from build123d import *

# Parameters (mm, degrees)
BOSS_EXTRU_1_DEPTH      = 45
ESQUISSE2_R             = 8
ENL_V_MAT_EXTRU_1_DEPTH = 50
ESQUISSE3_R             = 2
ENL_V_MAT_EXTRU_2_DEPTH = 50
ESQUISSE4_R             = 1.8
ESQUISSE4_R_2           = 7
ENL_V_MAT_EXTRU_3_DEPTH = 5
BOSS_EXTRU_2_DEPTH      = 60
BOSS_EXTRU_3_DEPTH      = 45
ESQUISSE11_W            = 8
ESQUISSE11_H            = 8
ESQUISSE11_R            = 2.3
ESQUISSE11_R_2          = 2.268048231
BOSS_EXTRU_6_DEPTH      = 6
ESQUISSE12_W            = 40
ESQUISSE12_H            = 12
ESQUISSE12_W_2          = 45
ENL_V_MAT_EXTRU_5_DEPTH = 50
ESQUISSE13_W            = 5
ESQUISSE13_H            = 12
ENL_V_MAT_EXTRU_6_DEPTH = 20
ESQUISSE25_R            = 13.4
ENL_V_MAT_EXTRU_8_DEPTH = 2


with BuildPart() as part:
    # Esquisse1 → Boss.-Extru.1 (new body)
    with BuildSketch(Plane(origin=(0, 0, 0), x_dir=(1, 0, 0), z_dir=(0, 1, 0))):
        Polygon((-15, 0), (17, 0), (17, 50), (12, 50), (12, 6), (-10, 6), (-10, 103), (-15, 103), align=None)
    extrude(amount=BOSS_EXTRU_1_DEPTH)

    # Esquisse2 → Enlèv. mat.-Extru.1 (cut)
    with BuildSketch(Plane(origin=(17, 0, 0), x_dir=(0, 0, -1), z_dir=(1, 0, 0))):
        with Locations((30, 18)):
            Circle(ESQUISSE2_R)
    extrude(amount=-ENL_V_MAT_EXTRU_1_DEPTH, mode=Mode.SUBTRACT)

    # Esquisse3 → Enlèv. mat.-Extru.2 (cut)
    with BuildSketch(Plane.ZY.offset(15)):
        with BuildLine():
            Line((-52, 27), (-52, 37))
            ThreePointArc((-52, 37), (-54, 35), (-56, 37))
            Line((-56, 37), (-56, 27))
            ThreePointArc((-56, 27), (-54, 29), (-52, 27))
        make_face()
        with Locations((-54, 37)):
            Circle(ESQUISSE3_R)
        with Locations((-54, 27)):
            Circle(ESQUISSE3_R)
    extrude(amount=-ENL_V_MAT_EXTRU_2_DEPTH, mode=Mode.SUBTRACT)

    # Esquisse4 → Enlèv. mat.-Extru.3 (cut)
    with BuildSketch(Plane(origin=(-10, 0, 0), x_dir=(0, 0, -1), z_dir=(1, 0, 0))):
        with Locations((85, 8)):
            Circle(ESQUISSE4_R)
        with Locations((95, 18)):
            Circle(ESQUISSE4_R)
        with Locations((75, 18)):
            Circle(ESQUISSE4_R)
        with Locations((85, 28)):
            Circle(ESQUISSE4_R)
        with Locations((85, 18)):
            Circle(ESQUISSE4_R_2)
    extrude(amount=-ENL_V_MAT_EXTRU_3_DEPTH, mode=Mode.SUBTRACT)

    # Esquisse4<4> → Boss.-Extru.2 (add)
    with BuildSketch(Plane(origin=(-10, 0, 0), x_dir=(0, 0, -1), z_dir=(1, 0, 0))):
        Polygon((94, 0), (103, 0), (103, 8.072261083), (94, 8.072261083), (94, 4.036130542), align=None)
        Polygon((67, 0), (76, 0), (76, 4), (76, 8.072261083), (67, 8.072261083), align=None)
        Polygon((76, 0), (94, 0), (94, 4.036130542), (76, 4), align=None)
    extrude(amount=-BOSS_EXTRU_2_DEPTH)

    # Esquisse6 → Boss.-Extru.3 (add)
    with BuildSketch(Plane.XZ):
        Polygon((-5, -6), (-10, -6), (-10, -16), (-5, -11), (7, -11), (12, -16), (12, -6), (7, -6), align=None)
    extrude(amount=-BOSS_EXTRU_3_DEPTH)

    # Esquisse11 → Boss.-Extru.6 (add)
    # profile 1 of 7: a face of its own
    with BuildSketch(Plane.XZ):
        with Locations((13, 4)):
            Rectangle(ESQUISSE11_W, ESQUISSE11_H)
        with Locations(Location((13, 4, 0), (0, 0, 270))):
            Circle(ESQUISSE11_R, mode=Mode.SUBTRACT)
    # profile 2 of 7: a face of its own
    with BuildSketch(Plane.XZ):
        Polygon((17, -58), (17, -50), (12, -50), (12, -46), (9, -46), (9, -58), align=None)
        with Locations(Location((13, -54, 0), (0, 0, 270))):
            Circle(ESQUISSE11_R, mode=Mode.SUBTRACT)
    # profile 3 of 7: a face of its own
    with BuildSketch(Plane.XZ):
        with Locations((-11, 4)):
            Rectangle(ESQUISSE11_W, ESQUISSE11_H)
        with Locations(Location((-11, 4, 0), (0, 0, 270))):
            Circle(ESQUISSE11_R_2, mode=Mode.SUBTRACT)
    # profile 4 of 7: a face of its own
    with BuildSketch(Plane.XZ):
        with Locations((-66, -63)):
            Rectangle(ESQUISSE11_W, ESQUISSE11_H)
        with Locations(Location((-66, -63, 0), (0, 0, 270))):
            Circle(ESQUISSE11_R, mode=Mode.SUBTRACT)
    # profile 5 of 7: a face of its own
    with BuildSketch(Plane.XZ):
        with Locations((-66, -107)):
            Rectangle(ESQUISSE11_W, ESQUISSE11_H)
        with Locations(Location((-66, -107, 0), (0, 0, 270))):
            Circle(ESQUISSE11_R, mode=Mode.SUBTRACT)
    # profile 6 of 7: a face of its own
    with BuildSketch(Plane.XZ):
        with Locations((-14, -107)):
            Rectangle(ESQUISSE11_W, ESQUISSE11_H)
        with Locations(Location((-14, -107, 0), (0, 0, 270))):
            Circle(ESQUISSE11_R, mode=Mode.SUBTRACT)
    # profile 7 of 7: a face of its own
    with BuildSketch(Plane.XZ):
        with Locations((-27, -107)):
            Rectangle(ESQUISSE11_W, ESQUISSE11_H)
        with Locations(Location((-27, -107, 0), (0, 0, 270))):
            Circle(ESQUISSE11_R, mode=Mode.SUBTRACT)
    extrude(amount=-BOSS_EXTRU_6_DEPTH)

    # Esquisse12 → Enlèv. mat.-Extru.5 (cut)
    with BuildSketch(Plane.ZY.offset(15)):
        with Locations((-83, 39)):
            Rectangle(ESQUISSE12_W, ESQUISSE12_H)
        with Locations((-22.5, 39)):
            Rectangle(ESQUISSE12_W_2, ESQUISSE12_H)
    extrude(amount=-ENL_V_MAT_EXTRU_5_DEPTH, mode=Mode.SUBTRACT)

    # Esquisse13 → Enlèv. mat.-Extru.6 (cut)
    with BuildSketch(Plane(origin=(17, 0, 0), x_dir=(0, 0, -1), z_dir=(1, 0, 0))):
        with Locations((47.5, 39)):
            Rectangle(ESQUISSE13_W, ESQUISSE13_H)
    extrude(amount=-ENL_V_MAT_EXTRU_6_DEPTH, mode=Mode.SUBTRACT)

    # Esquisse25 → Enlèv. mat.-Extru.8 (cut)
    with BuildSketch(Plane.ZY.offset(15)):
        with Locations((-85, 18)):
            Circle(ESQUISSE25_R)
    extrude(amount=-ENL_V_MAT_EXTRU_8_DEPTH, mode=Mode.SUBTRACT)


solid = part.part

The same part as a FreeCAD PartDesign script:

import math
import FreeCAD as App
import Part
import Sketcher

V = App.Vector


def add_polygon(sketch, points):
    """Adds a closed chain of lines whose ends are joined by coincident constraints."""
    first, n = sketch.GeometryCount, len(points)
    for a, b in zip(points, points[1:] + points[:1]):
        sketch.addGeometry(Part.LineSegment(App.Vector(*a, 0), App.Vector(*b, 0)), False)
    for i in range(n):
        sketch.addConstraint(Sketcher.Constraint("Coincident", first + i, 2, first + (i + 1) % n, 1))

doc = App.newDocument("Part")
params = doc.addObject("Spreadsheet::Sheet", "Params")
for row, (alias, value) in enumerate([
    ("sketch1_width", "32 mm"),
    ("sketch1_width2", "5 mm"),
    ("sketch1_height", "50 mm"),
    ("sketch1_height2", "44 mm"),
    ("sketch1_height3", "97 mm"),
    ("pad1_length", "45 mm"),
    ("sketch2_diameter", "16 mm"),
    ("pocket1_length", "50 mm"),
    ("sketch3_radius", "2 mm"),
    ("sketch3_width", "10 mm"),
    ("pocket2_length", "50 mm"),
    ("sketch4_diameter", "14 mm"),
    ("sketch4_diameter2", "3.6 mm"),
    ("pocket3_length", "5 mm"),
    ("sketch5_height", "9 mm"),
    ("sketch5_height2", "36 mm"),
    ("pad2_length", "60 mm"),
    ("sketch6_width", "12 mm"),
    ("sketch6_width2", "22 mm"),
    ("sketch6_height", "10 mm"),
    ("pad3_length", "45 mm"),
    ("sketch7_diameter", "4.6 mm"),
    ("sketch7_width", "8 mm"),
    ("sketch7_width2", "5 mm"),
    ("sketch7_height", "4 mm"),
    ("pad4_length", "6 mm"),
    ("sketch8_width", "12 mm"),
    ("sketch8_height", "40 mm"),
    ("sketch8_height2", "45 mm"),
    ("pocket4_length", "50 mm"),
    ("sketch9_width", "12 mm"),
    ("sketch9_height", "5 mm"),
    ("pocket5_length", "20 mm"),
    ("sketch10_diameter", "26.8 mm"),
    ("pocket6_length", "2 mm"),
], start=1):
    params.set(f"A{row}", alias)
    params.set(f"B{row}", "=" + value)
    params.setAlias(f"B{row}", alias)

body = doc.addObject("PartDesign::Body", "Body")

# Sketch on XZ plane
sketch1 = body.newObject("Sketcher::SketchObject", "Sketch")
sketch1.AttachmentSupport = (doc.getObject("XZ_Plane"), [""])
sketch1.MapMode = "FlatFace"
add_polygon(sketch1, [(-15, 0), (17, 0), (17, -50), (12, -50), (12, -6), (-10, -6), (-10, -103), (-15, -103)])  # lines 0-7
sketch1.addConstraint([
    Sketcher.Constraint("Horizontal", 0),
    Sketcher.Constraint("Vertical", 1),
    Sketcher.Constraint("Horizontal", 2),
    Sketcher.Constraint("Vertical", 3),
    Sketcher.Constraint("Horizontal", 4),
    Sketcher.Constraint("Vertical", 5),
    Sketcher.Constraint("Horizontal", 6),
    Sketcher.Constraint("Vertical", 7),
    Sketcher.Constraint("PointOnObject", 0, 2, -1),
    Sketcher.Constraint("Equal", 2, 6),
    Sketcher.Constraint("DistanceX", 0, 1, 0, 2, 32.0),
    Sketcher.Constraint("DistanceX", 2, 2, 2, 1, 5.0),
    Sketcher.Constraint("DistanceY", 1, 2, 1, 1, 50.0),
    Sketcher.Constraint("DistanceY", 3, 1, 3, 2, 44.0),
    Sketcher.Constraint("DistanceY", 5, 2, 5, 1, 97.0),
    Sketcher.Constraint("DistanceX", -1, 1, 0, 2, 17.0),
])
sketch1.setExpression("Constraints[18]", "Params.sketch1_width")
sketch1.setExpression("Constraints[19]", "Params.sketch1_width2")
sketch1.setExpression("Constraints[20]", "Params.sketch1_height")
sketch1.setExpression("Constraints[21]", "Params.sketch1_height2")
sketch1.setExpression("Constraints[22]", "Params.sketch1_height3")
pad1 = body.newObject("PartDesign::Pad", "Pad")
pad1.Profile = sketch1
pad1.setExpression("Length", "Params.pad1_length")
pad1.Reversed = True

# Sketch on YZ plane
sketch2 = body.newObject("Sketcher::SketchObject", "Sketch001")
sketch2.AttachmentSupport = (doc.getObject("YZ_Plane"), [""])
sketch2.MapMode = "FlatFace"
sketch2.AttachmentOffset = App.Placement(V(0, 0, 17), App.Rotation())
sketch2.addGeometry(Part.Circle(V(18, -30, 0), V(0, 0, 1), 8), False)
sketch2.addConstraint([
    Sketcher.Constraint("Diameter", 0, 16.0),
    Sketcher.Constraint("DistanceX", -1, 1, 0, 3, 18.0),
    Sketcher.Constraint("DistanceY", 0, 3, -1, 1, 30.0),
])
sketch2.setExpression("Constraints[0]", "Params.sketch2_diameter")
pocket1 = body.newObject("PartDesign::Pocket", "Pocket")
pocket1.Profile = sketch2
pocket1.setExpression("Length", "Params.pocket1_length")

# Sketch on YZ plane
sketch3 = body.newObject("Sketcher::SketchObject", "Sketch002")
sketch3.AttachmentSupport = (doc.getObject("YZ_Plane"), [""])
sketch3.MapMode = "FlatFace"
sketch3.AttachmentOffset = App.Placement(V(0, 0, -15), App.Rotation())
sketch3.addGeometry([
    Part.LineSegment(V(27, -52, 0), V(37, -52, 0)),
    Part.ArcOfCircle(Part.Circle(V(37, -54, 0), V(0, 0, 1), 2), math.radians(-90), math.radians(90)),
    Part.LineSegment(V(37, -56, 0), V(27, -56, 0)),
    Part.ArcOfCircle(Part.Circle(V(27, -54, 0), V(0, 0, 1), 2), math.radians(90), math.radians(270)),
], False)
sketch3.addConstraint([
    Sketcher.Constraint("Tangent", 0, 2, 1, 2),
    Sketcher.Constraint("Tangent", 1, 1, 2, 1),
    Sketcher.Constraint("Tangent", 2, 2, 3, 2),
    Sketcher.Constraint("Tangent", 3, 1, 0, 1),
    Sketcher.Constraint("Horizontal", 0),
    Sketcher.Constraint("Horizontal", 2),
    Sketcher.Constraint("Radius", 1, 2.0),
    Sketcher.Constraint("DistanceX", 0, 1, 0, 2, 10.0),
    Sketcher.Constraint("DistanceX", -1, 1, 1, 3, 37.0),
    Sketcher.Constraint("DistanceY", 1, 3, -1, 1, 54.0),
])
sketch3.setExpression("Constraints[6]", "Params.sketch3_radius")
sketch3.setExpression("Constraints[7]", "Params.sketch3_width")
pocket2 = body.newObject("PartDesign::Pocket", "Pocket001")
pocket2.Profile = sketch3
pocket2.setExpression("Length", "Params.pocket2_length")
pocket2.Reversed = True

# Sketch on YZ plane
sketch4 = body.newObject("Sketcher::SketchObject", "Sketch003")
sketch4.AttachmentSupport = (doc.getObject("YZ_Plane"), [""])
sketch4.MapMode = "FlatFace"
sketch4.AttachmentOffset = App.Placement(V(0, 0, -10), App.Rotation())
sketch4.addGeometry([
    Part.Circle(V(8, -85, 0), V(0, 0, 1), 1.8),  # 0
    Part.Circle(V(18, -95, 0), V(0, 0, 1), 1.8),  # 1
    Part.Circle(V(18, -75, 0), V(0, 0, 1), 1.8),  # 2
    Part.Circle(V(28, -85, 0), V(0, 0, 1), 1.8),  # 3
    Part.Circle(V(18, -85, 0), V(0, 0, 1), 7),  # 4
], False)
sketch4.addConstraint([
    Sketcher.Constraint("Equal", 0, 1),
    Sketcher.Constraint("Equal", 1, 2),
    Sketcher.Constraint("Equal", 2, 3),
    Sketcher.Constraint("Horizontal", 0, 3, 3, 3),
    Sketcher.Constraint("Horizontal", 3, 3, 4, 3),
    Sketcher.Constraint("Vertical", 1, 3, 2, 3),
    Sketcher.Constraint("Vertical", 2, 3, 4, 3),
    Sketcher.Constraint("Diameter", 4, 14.0),
    Sketcher.Constraint("Diameter", 0, 3.6),
    Sketcher.Constraint("DistanceX", -1, 1, 0, 3, 8.0),
    Sketcher.Constraint("DistanceY", 0, 3, -1, 1, 85.0),
    Sketcher.Constraint("DistanceX", -1, 1, 1, 3, 18.0),
    Sketcher.Constraint("DistanceY", 1, 3, -1, 1, 95.0),
    Sketcher.Constraint("DistanceY", 2, 3, -1, 1, 75.0),
    Sketcher.Constraint("DistanceX", -1, 1, 3, 3, 28.0),
])
sketch4.setExpression("Constraints[7]", "Params.sketch4_diameter")
sketch4.setExpression("Constraints[8]", "Params.sketch4_diameter2")
pocket3 = body.newObject("PartDesign::Pocket", "Pocket002")
pocket3.Profile = sketch4
pocket3.setExpression("Length", "Params.pocket3_length")

# Sketch on YZ plane
sketch5 = body.newObject("Sketcher::SketchObject", "Sketch004")
sketch5.AttachmentSupport = (doc.getObject("YZ_Plane"), [""])
sketch5.MapMode = "FlatFace"
sketch5.AttachmentOffset = App.Placement(V(0, 0, -10), App.Rotation())
add_polygon(sketch5, [(0, -103), (8.1, -103), (8.1, -94), (4, -94), (4, -76), (8.1, -76), (8.1, -67), (0, -67)])  # lines 0-7
sketch5.addConstraint([
    Sketcher.Constraint("Horizontal", 0),
    Sketcher.Constraint("Vertical", 1),
    Sketcher.Constraint("Horizontal", 2),
    Sketcher.Constraint("Horizontal", 4),
    Sketcher.Constraint("Vertical", 5),
    Sketcher.Constraint("Horizontal", 6),
    Sketcher.Constraint("Vertical", 7),
    Sketcher.Constraint("PointOnObject", 6, 2, -2),
    Sketcher.Constraint("Vertical", 1, 2, 4, 2),
    Sketcher.Constraint("Equal", 1, 5),
    Sketcher.Constraint("DistanceY", 1, 1, 1, 2, 9.0),
    Sketcher.Constraint("DistanceY", 7, 2, 7, 1, 36.0),
    Sketcher.Constraint("DistanceY", 0, 2, -1, 1, 103.0),
    Sketcher.Constraint("DistanceX", -1, 1, 3, 2, 4.0),
    Sketcher.Constraint("DistanceX", 0, 1, 0, 2, 8.072261),
    Sketcher.Constraint("DistanceX", 2, 2, 2, 1, 4.036131),
])
sketch5.setExpression("Constraints[18]", "Params.sketch5_height")
sketch5.setExpression("Constraints[19]", "Params.sketch5_height2")
pad2 = body.newObject("PartDesign::Pad", "Pad001")
pad2.Profile = sketch5
pad2.setExpression("Length", "Params.pad2_length")
pad2.Reversed = True

# Sketch on XZ plane
sketch6 = body.newObject("Sketcher::SketchObject", "Sketch005")
sketch6.AttachmentSupport = (doc.getObject("XZ_Plane"), [""])
sketch6.MapMode = "FlatFace"
add_polygon(sketch6, [(-10, -6), (-10, -16), (-5, -11), (7, -11), (12, -16), (12, -6)])  # lines 0-5
sketch6.addConstraint([
    Sketcher.Constraint("Vertical", 0),
    Sketcher.Constraint("Horizontal", 2),
    Sketcher.Constraint("Vertical", 4),
    Sketcher.Constraint("Horizontal", 5),
    Sketcher.Constraint("Perpendicular", 1, 3),
    Sketcher.Constraint("Horizontal", 0, 2, 3, 2),
    Sketcher.Constraint("Equal", 1, 3),
    Sketcher.Constraint("DistanceX", 2, 1, 2, 2, 12.0),
    Sketcher.Constraint("DistanceX", 5, 2, 5, 1, 22.0),
    Sketcher.Constraint("DistanceY", 0, 2, 0, 1, 10.0),
    Sketcher.Constraint("DistanceX", 0, 2, -1, 1, 10.0),
    Sketcher.Constraint("DistanceY", 0, 2, -1, 1, 16.0),
])
sketch6.setExpression("Constraints[13]", "Params.sketch6_width")
sketch6.setExpression("Constraints[14]", "Params.sketch6_width2")
sketch6.setExpression("Constraints[15]", "Params.sketch6_height")
pad3 = body.newObject("PartDesign::Pad", "Pad002")
pad3.Profile = sketch6
pad3.setExpression("Length", "Params.pad3_length")
pad3.Reversed = True

# Sketch on XZ plane
sketch7 = body.newObject("Sketcher::SketchObject", "Sketch006")
sketch7.AttachmentSupport = (doc.getObject("XZ_Plane"), [""])
sketch7.MapMode = "FlatFace"
add_polygon(sketch7, [(9, 8), (9, 0), (17, 0), (17, 8)])  # lines 0-3
sketch7.addGeometry(Part.Circle(V(13, 4, 0), V(0, 0, 1), 2.3), False)  # 4
add_polygon(sketch7, [(17, -58), (17, -50), (12, -50), (12, -46), (9, -46), (9, -58)])  # lines 5-10
sketch7.addGeometry(Part.Circle(V(13, -54, 0), V(0, 0, 1), 2.3), False)  # 11
add_polygon(sketch7, [(-15, 8), (-15, 0), (-7, 0), (-7, 8)])  # lines 12-15
sketch7.addGeometry(Part.Circle(V(-11, 4, 0), V(0, 0, 1), 2.3), False)  # 16
add_polygon(sketch7, [(-70, -59), (-70, -67), (-62, -67), (-62, -59)])  # lines 17-20
sketch7.addGeometry(Part.Circle(V(-66, -63, 0), V(0, 0, 1), 2.3), False)  # 21
add_polygon(sketch7, [(-70, -103), (-70, -111), (-62, -111), (-62, -103)])  # lines 22-25
sketch7.addGeometry(Part.Circle(V(-66, -107, 0), V(0, 0, 1), 2.3), False)  # 26
add_polygon(sketch7, [(-18, -103), (-18, -111), (-10, -111), (-10, -103)])  # lines 27-30
sketch7.addGeometry(Part.Circle(V(-14, -107, 0), V(0, 0, 1), 2.3), False)  # 31
add_polygon(sketch7, [(-31, -103), (-31, -111), (-23, -111), (-23, -103)])  # lines 32-35
sketch7.addGeometry(Part.Circle(V(-27, -107, 0), V(0, 0, 1), 2.3), False)  # 36
sketch7.addConstraint([
    Sketcher.Constraint("Vertical", 0),
    Sketcher.Constraint("Horizontal", 1),
    Sketcher.Constraint("Vertical", 2),
    Sketcher.Constraint("Horizontal", 3),
    Sketcher.Constraint("Vertical", 5),
    Sketcher.Constraint("Horizontal", 6),
    Sketcher.Constraint("Vertical", 7),
    Sketcher.Constraint("Horizontal", 8),
    Sketcher.Constraint("Vertical", 9),
    Sketcher.Constraint("Horizontal", 10),
    Sketcher.Constraint("Vertical", 12),
    Sketcher.Constraint("Horizontal", 13),
    Sketcher.Constraint("Vertical", 14),
    Sketcher.Constraint("Horizontal", 15),
    Sketcher.Constraint("Vertical", 17),
    Sketcher.Constraint("Horizontal", 18),
    Sketcher.Constraint("Vertical", 19),
    Sketcher.Constraint("Horizontal", 20),
    Sketcher.Constraint("Vertical", 22),
    Sketcher.Constraint("Horizontal", 23),
    Sketcher.Constraint("Vertical", 24),
    Sketcher.Constraint("Horizontal", 25),
    Sketcher.Constraint("Vertical", 27),
    Sketcher.Constraint("Horizontal", 28),
    Sketcher.Constraint("Vertical", 29),
    Sketcher.Constraint("Horizontal", 30),
    Sketcher.Constraint("Vertical", 32),
    Sketcher.Constraint("Horizontal", 33),
    Sketcher.Constraint("Vertical", 34),
    Sketcher.Constraint("Horizontal", 35),
    Sketcher.Constraint("Equal", 4, 11),
    Sketcher.Constraint("Equal", 11, 21),
    Sketcher.Constraint("Equal", 21, 26),
    Sketcher.Constraint("Equal", 26, 31),
    Sketcher.Constraint("Equal", 31, 36),
    Sketcher.Constraint("PointOnObject", 0, 2, -1),
    Sketcher.Constraint("PointOnObject", 12, 2, -1),
    Sketcher.Constraint("Horizontal", 4, 3, 16, 3),
    Sketcher.Constraint("Horizontal", 26, 3, 31, 3),
    Sketcher.Constraint("Horizontal", 31, 3, 36, 3),
    Sketcher.Constraint("Horizontal", 3, 2, 14, 2),
    Sketcher.Constraint("Horizontal", 23, 2, 27, 2),
    Sketcher.Constraint("Horizontal", 25, 2, 29, 2),
    Sketcher.Constraint("Horizontal", 28, 2, 32, 2),
    Sketcher.Constraint("Horizontal", 30, 2, 34, 2),
    Sketcher.Constraint("Vertical", 4, 3, 11, 3),
    Sketcher.Constraint("Vertical", 21, 3, 26, 3),
    Sketcher.Constraint("Vertical", 2, 2, 5, 2),
    Sketcher.Constraint("Vertical", 3, 2, 8, 2),
    Sketcher.Constraint("Vertical", 20, 2, 22, 2),
    Sketcher.Constraint("Vertical", 19, 2, 23, 2),
    Sketcher.Constraint("Equal", 10, 13),
    Sketcher.Constraint("Equal", 15, 18),
    Sketcher.Constraint("Equal", 25, 28),
    Sketcher.Constraint("Equal", 30, 33),
    Sketcher.Constraint("Equal", 35, 0),
    Sketcher.Constraint("Equal", 2, 5),
    Sketcher.Constraint("Equal", 14, 17),
    Sketcher.Constraint("Equal", 19, 22),
    Sketcher.Constraint("Diameter", 4, 4.6),
    Sketcher.Constraint("DistanceX", 1, 1, 1, 2, 8.0),
    Sketcher.Constraint("DistanceX", 6, 2, 6, 1, 5.0),
    Sketcher.Constraint("DistanceY", 7, 1, 7, 2, 4.0),
    Sketcher.Constraint("DistanceX", -1, 1, 4, 3, 13.0),
    Sketcher.Constraint("DistanceY", -1, 1, 4, 3, 4.0),
    Sketcher.Constraint("DistanceY", 11, 3, -1, 1, 54.0),
    Sketcher.Constraint("DistanceX", 16, 3, -1, 1, 11.0),
    Sketcher.Constraint("DistanceX", 21, 3, -1, 1, 66.0),
    Sketcher.Constraint("DistanceY", 21, 3, -1, 1, 63.0),
    Sketcher.Constraint("DistanceY", 26, 3, -1, 1, 107.0),
    Sketcher.Constraint("DistanceX", 31, 3, -1, 1, 14.0),
    Sketcher.Constraint("DistanceX", 36, 3, -1, 1, 27.0),
    Sketcher.Constraint("DistanceX", -1, 1, 0, 2, 9.0),
    Sketcher.Constraint("DistanceY", 5, 2, -1, 1, 50.0),
    Sketcher.Constraint("DistanceX", 12, 2, -1, 1, 15.0),
    Sketcher.Constraint("DistanceX", 17, 2, -1, 1, 70.0),
    Sketcher.Constraint("DistanceY", 17, 2, -1, 1, 67.0),
    Sketcher.Constraint("DistanceY", 22, 2, -1, 1, 111.0),
    Sketcher.Constraint("DistanceX", 27, 2, -1, 1, 18.0),
    Sketcher.Constraint("DistanceX", 32, 2, -1, 1, 31.0),
    Sketcher.Constraint("Diameter", 16, 4.536096),
])
sketch7.setExpression("Constraints[89]", "Params.sketch7_diameter")
sketch7.setExpression("Constraints[90]", "Params.sketch7_width")
sketch7.setExpression("Constraints[91]", "Params.sketch7_width2")
sketch7.setExpression("Constraints[92]", "Params.sketch7_height")
pad4 = body.newObject("PartDesign::Pad", "Pad003")
pad4.Profile = sketch7
pad4.setExpression("Length", "Params.pad4_length")
pad4.Reversed = True

# Sketch on YZ plane
sketch8 = body.newObject("Sketcher::SketchObject", "Sketch007")
sketch8.AttachmentSupport = (doc.getObject("YZ_Plane"), [""])
sketch8.MapMode = "FlatFace"
sketch8.AttachmentOffset = App.Placement(V(0, 0, -15), App.Rotation())
add_polygon(sketch8, [(45, -103), (33, -103), (33, -63), (45, -63)])  # lines 0-3
add_polygon(sketch8, [(45, -45), (33, -45), (33, 0), (45, 0)])  # lines 4-7
sketch8.addConstraint([
    Sketcher.Constraint("Horizontal", 0),
    Sketcher.Constraint("Vertical", 1),
    Sketcher.Constraint("Horizontal", 2),
    Sketcher.Constraint("Vertical", 3),
    Sketcher.Constraint("Horizontal", 4),
    Sketcher.Constraint("Vertical", 5),
    Sketcher.Constraint("Horizontal", 6),
    Sketcher.Constraint("Vertical", 7),
    Sketcher.Constraint("PointOnObject", 5, 2, -1),
    Sketcher.Constraint("Vertical", 1, 2, 4, 2),
    Sketcher.Constraint("Vertical", 3, 2, 6, 2),
    Sketcher.Constraint("DistanceX", 0, 2, 0, 1, 12.0),
    Sketcher.Constraint("DistanceY", 1, 1, 1, 2, 40.0),
    Sketcher.Constraint("DistanceY", 5, 1, 5, 2, 45.0),
    Sketcher.Constraint("DistanceX", -1, 1, 0, 2, 33.0),
    Sketcher.Constraint("DistanceY", 0, 2, -1, 1, 103.0),
])
sketch8.setExpression("Constraints[19]", "Params.sketch8_width")
sketch8.setExpression("Constraints[20]", "Params.sketch8_height")
sketch8.setExpression("Constraints[21]", "Params.sketch8_height2")
pocket4 = body.newObject("PartDesign::Pocket", "Pocket003")
pocket4.Profile = sketch8
pocket4.setExpression("Length", "Params.pocket4_length")
pocket4.Reversed = True

# Sketch on YZ plane
sketch9 = body.newObject("Sketcher::SketchObject", "Sketch008")
sketch9.AttachmentSupport = (doc.getObject("YZ_Plane"), [""])
sketch9.MapMode = "FlatFace"
sketch9.AttachmentOffset = App.Placement(V(0, 0, 17), App.Rotation())
add_polygon(sketch9, [(45, -45), (33, -45), (33, -50), (45, -50)])  # lines 0-3
sketch9.addConstraint([
    Sketcher.Constraint("Horizontal", 0),
    Sketcher.Constraint("Vertical", 1),
    Sketcher.Constraint("Horizontal", 2),
    Sketcher.Constraint("Vertical", 3),
    Sketcher.Constraint("DistanceX", 0, 2, 0, 1, 12.0),
    Sketcher.Constraint("DistanceY", 1, 2, 1, 1, 5.0),
    Sketcher.Constraint("DistanceX", -1, 1, 0, 2, 33.0),
    Sketcher.Constraint("DistanceY", 0, 2, -1, 1, 45.0),
])
sketch9.setExpression("Constraints[8]", "Params.sketch9_width")
sketch9.setExpression("Constraints[9]", "Params.sketch9_height")
pocket5 = body.newObject("PartDesign::Pocket", "Pocket004")
pocket5.Profile = sketch9
pocket5.setExpression("Length", "Params.pocket5_length")

# Sketch on YZ plane
sketch10 = body.newObject("Sketcher::SketchObject", "Sketch009")
sketch10.AttachmentSupport = (doc.getObject("YZ_Plane"), [""])
sketch10.MapMode = "FlatFace"
sketch10.AttachmentOffset = App.Placement(V(0, 0, -15), App.Rotation())
sketch10.addGeometry(Part.Circle(V(18, -85, 0), V(0, 0, 1), 13), False)
sketch10.addConstraint([
    Sketcher.Constraint("Diameter", 0, 26.8),
    Sketcher.Constraint("DistanceX", -1, 1, 0, 3, 18.0),
    Sketcher.Constraint("DistanceY", 0, 3, -1, 1, 85.0),
])
sketch10.setExpression("Constraints[0]", "Params.sketch10_diameter")
pocket6 = body.newObject("PartDesign::Pocket", "Pocket005")
pocket6.Profile = sketch10
pocket6.setExpression("Length", "Params.pocket6_length")
pocket6.Reversed = True

doc.recompute()
